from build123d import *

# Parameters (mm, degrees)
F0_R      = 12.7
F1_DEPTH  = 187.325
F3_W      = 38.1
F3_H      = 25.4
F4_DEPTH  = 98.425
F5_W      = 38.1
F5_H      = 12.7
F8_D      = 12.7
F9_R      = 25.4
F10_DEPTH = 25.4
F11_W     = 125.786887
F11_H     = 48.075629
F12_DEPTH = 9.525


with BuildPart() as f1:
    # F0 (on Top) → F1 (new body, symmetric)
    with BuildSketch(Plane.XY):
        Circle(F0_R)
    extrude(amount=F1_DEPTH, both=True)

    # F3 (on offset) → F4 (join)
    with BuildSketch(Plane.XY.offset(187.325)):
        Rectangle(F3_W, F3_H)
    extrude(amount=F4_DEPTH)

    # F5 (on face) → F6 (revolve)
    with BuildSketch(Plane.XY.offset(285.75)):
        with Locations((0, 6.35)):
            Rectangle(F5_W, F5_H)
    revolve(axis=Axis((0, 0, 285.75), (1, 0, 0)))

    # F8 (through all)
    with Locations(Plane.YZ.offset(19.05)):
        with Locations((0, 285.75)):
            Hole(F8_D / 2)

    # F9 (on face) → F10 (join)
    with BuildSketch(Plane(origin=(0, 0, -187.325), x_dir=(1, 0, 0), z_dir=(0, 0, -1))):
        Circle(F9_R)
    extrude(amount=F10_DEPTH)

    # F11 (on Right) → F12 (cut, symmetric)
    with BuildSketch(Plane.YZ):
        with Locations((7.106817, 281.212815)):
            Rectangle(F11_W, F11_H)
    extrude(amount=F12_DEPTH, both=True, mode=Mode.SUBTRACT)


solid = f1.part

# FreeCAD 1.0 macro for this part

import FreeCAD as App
import Part
import Sketcher

V = App.Vector
Q = App.Units.Quantity

doc = App.newDocument("Part")
body = doc.addObject("PartDesign::Body", "Body")

sketch1 = doc.addObject("Sketcher::SketchObject", "Sketch")
body.addObject(sketch1)
sketch1.AttachmentSupport = (doc.XY_Plane, [""])
sketch1.MapMode = "FlatFace"
sketch1.addGeometry(Part.Circle(V(0, 0, 0), V(0, 0, 1), 13), False)
sketch1.addConstraint([
    Sketcher.Constraint("Coincident", 0, 3, -1, 1),
    Sketcher.Constraint("Diameter", 0, Q("1 in")),
])
pad1 = doc.addObject("PartDesign::Pad", "Pad")
body.addObject(pad1)
pad1.Profile = sketch1
pad1.Length = Q("14.75 in")
pad1.Midplane = True

sketch2 = doc.addObject("Sketcher::SketchObject", "Sketch001")
body.addObject(sketch2)
sketch2.AttachmentSupport = (doc.XY_Plane, [""])
sketch2.MapMode = "FlatFace"
sketch2.AttachmentOffset = App.Placement(V(0, 0, 7.375 * 25.4), App.Rotation())
sketch2.addGeometry([
    Part.LineSegment(V(-19, 13, 0), V(-19, -13, 0)),
    Part.LineSegment(V(-19, -13, 0), V(19, -13, 0)),
    Part.LineSegment(V(19, -13, 0), V(19, 13, 0)),
    Part.LineSegment(V(19, 13, 0), V(-19, 13, 0)),
], False)
sketch2.addConstraint([
    Sketcher.Constraint("Coincident", 0, 2, 1, 1),
    Sketcher.Constraint("Coincident", 1, 2, 2, 1),
    Sketcher.Constraint("Coincident", 2, 2, 3, 1),
    Sketcher.Constraint("Coincident", 3, 2, 0, 1),
    Sketcher.Constraint("Vertical", 0),
    Sketcher.Constraint("Horizontal", 1),
    Sketcher.Constraint("Vertical", 2),
    Sketcher.Constraint("Horizontal", 3),
    Sketcher.Constraint("Symmetric", 0, 2, 2, 2, -1, 1),
    Sketcher.Constraint("DistanceY", 0, 2, 0, 1, Q("1 in")),
    Sketcher.Constraint("DistanceX", 1, 1, 1, 2, Q("1.5 in")),
])
pad2 = doc.addObject("PartDesign::Pad", "Pad001")
body.addObject(pad2)
pad2.Profile = sketch2
pad2.Length = Q("3.875 in")

sketch3 = doc.addObject("Sketcher::SketchObject", "Sketch002")
body.addObject(sketch3)
sketch3.AttachmentSupport = (doc.XY_Plane, [""])
sketch3.MapMode = "FlatFace"
sketch3.AttachmentOffset = App.Placement(V(0, 0, 11.25 * 25.4), App.Rotation())
sketch3.addGeometry([
    Part.LineSegment(V(-19, 13, 0), V(-19, 0, 0)),
    Part.LineSegment(V(-19, 0, 0), V(19, 0, 0)),
    Part.LineSegment(V(19, 0, 0), V(19, 13, 0)),
    Part.LineSegment(V(19, 13, 0), V(-19, 13, 0)),
], False)
sketch3.addConstraint([
    Sketcher.Constraint("Coincident", 0, 2, 1, 1),
    Sketcher.Constraint("Coincident", 1, 2, 2, 1),
    Sketcher.Constraint("Coincident", 2, 2, 3, 1),
    Sketcher.Constraint("Coincident", 3, 2, 0, 1),
    Sketcher.Constraint("Vertical", 0),
    Sketcher.Constraint("Horizontal", 1),
    Sketcher.Constraint("Vertical", 2),
    Sketcher.Constraint("Horizontal", 3),
    Sketcher.Constraint("Symmetric", 0, 2, 1, 2, -1, 1),
    Sketcher.Constraint("DistanceX", 1, 1, 1, 2, Q("1.5 in")),
    Sketcher.Constraint("DistanceY", 0, 2, 0, 1, Q("0.5 in")),
])
revolution = doc.addObject("PartDesign::Revolution", "Revolution")
body.addObject(revolution)
revolution.Profile = sketch3
revolution.ReferenceAxis = (sketch3, ["H_Axis"])
revolution.Angle = 360

sketch4 = doc.addObject("Sketcher::SketchObject", "Sketch003")
body.addObject(sketch4)
sketch4.AttachmentSupport = (doc.YZ_Plane, [""])
sketch4.MapMode = "FlatFace"
sketch4.AttachmentOffset = App.Placement(V(0, 0, 0.75 * 25.4), App.Rotation())
sketch4.addGeometry(Part.Circle(V(0, 286, 0), V(0, 0, 1), 6), False)
sketch4.addConstraint([
    Sketcher.Constraint("PointOnObject", 0, 3, -2),
    Sketcher.Constraint("Diameter", 0, Q("0.5 in")),
    Sketcher.Constraint("DistanceY", -1, 1, 0, 3, Q("11.25 in")),
])
doc.recompute()
hole = doc.addObject("PartDesign::Hole", "Hole")
body.addObject(hole)
hole.Profile = sketch4
hole.ThreadType = "None"
hole.Diameter = Q("0.5 in")
hole.DepthType = "ThroughAll"

sketch5 = doc.addObject("Sketcher::SketchObject", "Sketch004")
body.addObject(sketch5)
sketch5.AttachmentSupport = (doc.XY_Plane, [""])
sketch5.MapMode = "FlatFace"
sketch5.AttachmentOffset = App.Placement(V(0, 0, -7.375 * 25.4), App.Rotation())
sketch5.addGeometry(Part.Circle(V(0, 0, 0), V(0, 0, 1), 25), False)
sketch5.addConstraint([
    Sketcher.Constraint("Coincident", 0, 3, -1, 1),
    Sketcher.Constraint("Diameter", 0, Q("2 in")),
])
pad3 = doc.addObject("PartDesign::Pad", "Pad002")
body.addObject(pad3)
pad3.Profile = sketch5
pad3.Length = Q("1 in")
pad3.Reversed = True

sketch6 = doc.addObject("Sketcher::SketchObject", "Sketch005")
body.addObject(sketch6)
sketch6.AttachmentSupport = (doc.YZ_Plane, [""])
sketch6.MapMode = "FlatFace"
sketch6.addGeometry([
    Part.LineSegment(V(-56, 305, 0), V(-56, 257, 0)),
    Part.LineSegment(V(-56, 257, 0), V(70, 257, 0)),
    Part.LineSegment(V(70, 257, 0), V(70, 305, 0)),
    Part.LineSegment(V(70, 305, 0), V(-56, 305, 0)),
], False)
sketch6.addConstraint([
    Sketcher.Constraint("Coincident", 0, 2, 1, 1),
    Sketcher.Constraint("Coincident", 1, 2, 2, 1),
    Sketcher.Constraint("Coincident", 2, 2, 3, 1),
    Sketcher.Constraint("Coincident", 3, 2, 0, 1),
    Sketcher.Constraint("Vertical", 0),
    Sketcher.Constraint("Horizontal", 1),
    Sketcher.Constraint("Vertical", 2),
    Sketcher.Constraint("Horizontal", 3),
    Sketcher.Constraint("DistanceY", -1, 1, 0, 2, Q("10.125 in")),
    Sketcher.Constraint("DistanceY", 0, 2, 0, 1, 48.075629),
    Sketcher.Constraint("DistanceX", 1, 1, 1, 2, 125.786887),
    Sketcher.Constraint("DistanceX", -1, 1, 1, 2, 70.00026),
])
pocket1 = doc.addObject("PartDesign::Pocket", "Pocket")
body.addObject(pocket1)
pocket1.Profile = sketch6
pocket1.Length = Q("0.75 in")
pocket1.Midplane = True

doc.recompute()
